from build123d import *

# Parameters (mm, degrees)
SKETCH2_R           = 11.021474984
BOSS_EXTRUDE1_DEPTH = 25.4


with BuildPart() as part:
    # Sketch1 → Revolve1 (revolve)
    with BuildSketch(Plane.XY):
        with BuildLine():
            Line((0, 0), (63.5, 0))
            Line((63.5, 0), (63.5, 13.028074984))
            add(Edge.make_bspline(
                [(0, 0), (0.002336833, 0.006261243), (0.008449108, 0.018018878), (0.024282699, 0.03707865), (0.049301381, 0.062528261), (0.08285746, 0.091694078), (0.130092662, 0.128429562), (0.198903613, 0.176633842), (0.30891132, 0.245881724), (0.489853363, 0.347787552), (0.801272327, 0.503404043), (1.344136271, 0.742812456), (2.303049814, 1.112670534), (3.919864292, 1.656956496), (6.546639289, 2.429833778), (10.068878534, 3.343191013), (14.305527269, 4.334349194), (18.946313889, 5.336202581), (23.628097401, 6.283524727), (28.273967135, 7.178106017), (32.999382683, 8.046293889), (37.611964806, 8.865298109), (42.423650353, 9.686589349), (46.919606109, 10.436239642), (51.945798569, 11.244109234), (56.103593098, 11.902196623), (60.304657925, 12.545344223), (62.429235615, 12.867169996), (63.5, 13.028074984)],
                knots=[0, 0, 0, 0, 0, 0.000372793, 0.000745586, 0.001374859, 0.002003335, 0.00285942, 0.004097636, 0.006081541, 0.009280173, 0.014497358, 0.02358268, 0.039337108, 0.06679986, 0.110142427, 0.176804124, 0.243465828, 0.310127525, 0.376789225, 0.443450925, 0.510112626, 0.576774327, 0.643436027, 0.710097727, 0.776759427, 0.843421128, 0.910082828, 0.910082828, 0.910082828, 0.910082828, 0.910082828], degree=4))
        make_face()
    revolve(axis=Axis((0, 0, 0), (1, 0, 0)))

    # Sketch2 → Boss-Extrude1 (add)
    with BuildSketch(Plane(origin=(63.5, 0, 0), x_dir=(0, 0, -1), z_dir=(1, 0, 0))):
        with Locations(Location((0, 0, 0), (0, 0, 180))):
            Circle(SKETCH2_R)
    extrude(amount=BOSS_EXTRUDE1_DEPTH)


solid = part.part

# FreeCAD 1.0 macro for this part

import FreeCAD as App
import Part
import Sketcher
Q = App.Units.Quantity

doc = App.newDocument("Part")
params = doc.addObject("Spreadsheet::Sheet", "Params")
for row, (alias, value) in enumerate([
    ("revolution_angle", "360 deg"),
    ("pad1_length", "1 in"),
], start=1):
    params.set(f"A{row}", alias)
    params.set(f"B{row}", "=" + value)
    params.setAlias(f"B{row}", alias)

body = doc.addObject("PartDesign::Body", "Body")

sketch1 = body.newObject("Sketcher::SketchObject", "Sketch")
sketch1.AttachmentSupport = (doc.getObject("XY_Plane"), [""])
sketch1.MapMode = "FlatFace"
sketch1.addGeometry([
    Part.LineSegment(App.Vector(0, 0, 0), App.Vector(63.5, 0, 0)),
    Part.LineSegment(App.Vector(63.5, 0, 0), App.Vector(63.5, 13.028075, 0)),
    Part.BSplineCurve([App.Vector(0, 0, 0), App.Vector(0.002337, 0.006261, 0), App.Vector(0.008449, 0.018019, 0), App.Vector(0.024283, 0.037079, 0), App.Vector(0.049301, 0.062528, 0), App.Vector(0.082857, 0.091694, 0), App.Vector(0.130093, 0.12843, 0), App.Vector(0.198904, 0.176634, 0), App.Vector(0.308911, 0.245882, 0), App.Vector(0.489853, 0.347788, 0), App.Vector(0.801272, 0.503404, 0), App.Vector(1.344136, 0.742812, 0), App.Vector(2.30305, 1.112671, 0), App.Vector(3.919864, 1.656956, 0), App.Vector(6.546639, 2.429834, 0), App.Vector(10.068879, 3.343191, 0), App.Vector(14.305527, 4.334349, 0), App.Vector(18.946314, 5.336203, 0), App.Vector(23.628097, 6.283525, 0), App.Vector(28.273967, 7.178106, 0), App.Vector(32.999383, 8.046294, 0), App.Vector(37.611965, 8.865298, 0), App.Vector(42.42365, 9.686589, 0), App.Vector(46.919606, 10.43624, 0), App.Vector(51.945799, 11.244109, 0), App.Vector(56.103593, 11.902197, 0), App.Vector(60.304658, 12.545344, 0), App.Vector(62.429236, 12.86717, 0), App.Vector(63.5, 13.028075, 0)], [5, 1, 1, 1, 1, 1, 1, 1, 1, 1, 1, 1, 1, 1, 1, 1, 1, 1, 1, 1, 1, 1, 1, 1, 1, 5], [0, 0.000372793, 0.000745586, 0.001374859, 0.002003335, 0.00285942, 0.004097636, 0.006081541, 0.009280173, 0.014497358, 0.02358268, 0.039337108, 0.06679986, 0.110142427, 0.176804124, 0.243465828, 0.310127525, 0.376789225, 0.443450925, 0.510112626, 0.576774327, 0.643436027, 0.710097727, 0.776759427, 0.843421128, 0.910082828], False, 4, [1, 1, 1, 1, 1, 1, 1, 1, 1, 1, 1, 1, 1, 1, 1, 1, 1, 1, 1, 1, 1, 1, 1, 1, 1, 1, 1, 1, 1], False),
], False)
sketch1.addConstraint([
    Sketcher.Constraint("Block", 2),
    Sketcher.Constraint("Coincident", 0, 2, 1, 1),
    Sketcher.Constraint("Coincident", 1, 2, 2, 2),
    Sketcher.Constraint("Coincident", 2, 1, 0, 1),
    Sketcher.Constraint("Horizontal", 0),
    Sketcher.Constraint("Vertical", 1),
])
revolution = body.newObject("PartDesign::Revolution", "Revolution")
revolution.Profile = sketch1
revolution.ReferenceAxis = (sketch1, ["H_Axis"])
revolution.setExpression("Angle", "Params.revolution_angle")

sketch2 = body.newObject("Sketcher::SketchObject", "Sketch001")
sketch2.AttachmentSupport = (doc.getObject("YZ_Plane"), [""])
sketch2.MapMode = "FlatFace"
sketch2.AttachmentOffset = App.Placement(App.Vector(0, 0, 2.5 * 25.4), App.Rotation())
sketch2.addGeometry(Part.Circle(App.Vector(0, 0, 0), App.Vector(0, 0, 1), 11), False)
sketch2.addConstraint([
    Sketcher.Constraint("Coincident", 0, 3, -1, 1),
    Sketcher.Constraint("Diameter", 0, Q("22.04295 mm")),
])
pad1 = body.newObject("PartDesign::Pad", "Pad")
pad1.Profile = sketch2
pad1.setExpression("Length", "Params.pad1_length")

doc.recompute()
